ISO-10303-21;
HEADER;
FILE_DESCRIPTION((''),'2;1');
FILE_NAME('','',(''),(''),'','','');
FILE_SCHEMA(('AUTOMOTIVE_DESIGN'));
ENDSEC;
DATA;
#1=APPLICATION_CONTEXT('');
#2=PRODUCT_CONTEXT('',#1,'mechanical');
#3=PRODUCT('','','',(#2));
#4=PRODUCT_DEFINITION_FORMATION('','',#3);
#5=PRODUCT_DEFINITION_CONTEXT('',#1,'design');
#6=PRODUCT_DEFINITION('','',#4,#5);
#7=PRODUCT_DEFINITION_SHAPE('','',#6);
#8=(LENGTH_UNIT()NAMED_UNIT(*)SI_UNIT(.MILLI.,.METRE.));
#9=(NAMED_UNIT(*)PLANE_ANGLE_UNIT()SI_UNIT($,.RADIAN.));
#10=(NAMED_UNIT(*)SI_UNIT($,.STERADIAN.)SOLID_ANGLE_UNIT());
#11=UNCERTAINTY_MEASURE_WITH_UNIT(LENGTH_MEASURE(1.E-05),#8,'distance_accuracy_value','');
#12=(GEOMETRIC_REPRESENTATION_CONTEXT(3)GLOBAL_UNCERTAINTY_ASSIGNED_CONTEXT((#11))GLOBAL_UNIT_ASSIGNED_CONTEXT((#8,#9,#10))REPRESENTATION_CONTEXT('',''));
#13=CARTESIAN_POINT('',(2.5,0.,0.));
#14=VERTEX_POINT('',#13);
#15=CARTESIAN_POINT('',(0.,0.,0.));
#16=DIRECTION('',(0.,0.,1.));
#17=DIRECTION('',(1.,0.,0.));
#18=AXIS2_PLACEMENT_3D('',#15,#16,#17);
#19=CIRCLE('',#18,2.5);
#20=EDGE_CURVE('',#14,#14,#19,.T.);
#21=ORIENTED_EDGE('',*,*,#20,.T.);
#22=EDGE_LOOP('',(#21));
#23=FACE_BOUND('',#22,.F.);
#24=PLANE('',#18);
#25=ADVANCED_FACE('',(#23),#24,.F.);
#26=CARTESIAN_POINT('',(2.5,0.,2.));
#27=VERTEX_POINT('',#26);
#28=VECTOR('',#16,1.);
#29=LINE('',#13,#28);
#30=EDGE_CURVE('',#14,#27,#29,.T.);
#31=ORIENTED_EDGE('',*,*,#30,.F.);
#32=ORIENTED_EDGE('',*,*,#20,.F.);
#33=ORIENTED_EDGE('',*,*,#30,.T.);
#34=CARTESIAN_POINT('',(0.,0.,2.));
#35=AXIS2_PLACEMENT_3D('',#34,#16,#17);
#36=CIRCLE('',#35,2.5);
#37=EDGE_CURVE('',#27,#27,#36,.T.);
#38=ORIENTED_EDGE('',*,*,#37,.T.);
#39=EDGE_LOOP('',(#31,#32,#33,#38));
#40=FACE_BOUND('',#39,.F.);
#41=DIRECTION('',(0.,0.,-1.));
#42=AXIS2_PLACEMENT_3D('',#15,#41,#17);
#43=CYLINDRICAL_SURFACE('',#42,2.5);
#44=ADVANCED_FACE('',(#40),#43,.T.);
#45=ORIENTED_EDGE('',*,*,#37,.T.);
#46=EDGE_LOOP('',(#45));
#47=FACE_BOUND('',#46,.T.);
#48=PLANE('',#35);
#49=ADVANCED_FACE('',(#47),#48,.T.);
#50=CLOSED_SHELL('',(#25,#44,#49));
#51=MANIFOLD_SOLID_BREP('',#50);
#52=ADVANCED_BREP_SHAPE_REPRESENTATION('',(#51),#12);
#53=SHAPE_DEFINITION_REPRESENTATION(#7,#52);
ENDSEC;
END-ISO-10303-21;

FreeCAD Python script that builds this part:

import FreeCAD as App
import Part
import Sketcher
from FreeCAD import Vector

doc = App.newDocument("Part")
body = doc.addObject("PartDesign::Body", "Body")

sketch1 = doc.addObject("Sketcher::SketchObject", "Sketch")
body.addObject(sketch1)
sketch1.AttachmentSupport = (doc.XY_Plane, [""])
sketch1.MapMode = "FlatFace"
sketch1.addGeometry(Part.Circle(Vector(0, 0, 0), Vector(0, 0, 1), 2.5), False)
sketch1.addConstraint([
    Sketcher.Constraint("Coincident", 0, 3, -1, 1),
    Sketcher.Constraint("Diameter", 0, 5.0),
])
pad1 = doc.addObject("PartDesign::Pad", "Pad")
body.addObject(pad1)
pad1.Profile = sketch1
pad1.Length = 2

doc.recompute()
